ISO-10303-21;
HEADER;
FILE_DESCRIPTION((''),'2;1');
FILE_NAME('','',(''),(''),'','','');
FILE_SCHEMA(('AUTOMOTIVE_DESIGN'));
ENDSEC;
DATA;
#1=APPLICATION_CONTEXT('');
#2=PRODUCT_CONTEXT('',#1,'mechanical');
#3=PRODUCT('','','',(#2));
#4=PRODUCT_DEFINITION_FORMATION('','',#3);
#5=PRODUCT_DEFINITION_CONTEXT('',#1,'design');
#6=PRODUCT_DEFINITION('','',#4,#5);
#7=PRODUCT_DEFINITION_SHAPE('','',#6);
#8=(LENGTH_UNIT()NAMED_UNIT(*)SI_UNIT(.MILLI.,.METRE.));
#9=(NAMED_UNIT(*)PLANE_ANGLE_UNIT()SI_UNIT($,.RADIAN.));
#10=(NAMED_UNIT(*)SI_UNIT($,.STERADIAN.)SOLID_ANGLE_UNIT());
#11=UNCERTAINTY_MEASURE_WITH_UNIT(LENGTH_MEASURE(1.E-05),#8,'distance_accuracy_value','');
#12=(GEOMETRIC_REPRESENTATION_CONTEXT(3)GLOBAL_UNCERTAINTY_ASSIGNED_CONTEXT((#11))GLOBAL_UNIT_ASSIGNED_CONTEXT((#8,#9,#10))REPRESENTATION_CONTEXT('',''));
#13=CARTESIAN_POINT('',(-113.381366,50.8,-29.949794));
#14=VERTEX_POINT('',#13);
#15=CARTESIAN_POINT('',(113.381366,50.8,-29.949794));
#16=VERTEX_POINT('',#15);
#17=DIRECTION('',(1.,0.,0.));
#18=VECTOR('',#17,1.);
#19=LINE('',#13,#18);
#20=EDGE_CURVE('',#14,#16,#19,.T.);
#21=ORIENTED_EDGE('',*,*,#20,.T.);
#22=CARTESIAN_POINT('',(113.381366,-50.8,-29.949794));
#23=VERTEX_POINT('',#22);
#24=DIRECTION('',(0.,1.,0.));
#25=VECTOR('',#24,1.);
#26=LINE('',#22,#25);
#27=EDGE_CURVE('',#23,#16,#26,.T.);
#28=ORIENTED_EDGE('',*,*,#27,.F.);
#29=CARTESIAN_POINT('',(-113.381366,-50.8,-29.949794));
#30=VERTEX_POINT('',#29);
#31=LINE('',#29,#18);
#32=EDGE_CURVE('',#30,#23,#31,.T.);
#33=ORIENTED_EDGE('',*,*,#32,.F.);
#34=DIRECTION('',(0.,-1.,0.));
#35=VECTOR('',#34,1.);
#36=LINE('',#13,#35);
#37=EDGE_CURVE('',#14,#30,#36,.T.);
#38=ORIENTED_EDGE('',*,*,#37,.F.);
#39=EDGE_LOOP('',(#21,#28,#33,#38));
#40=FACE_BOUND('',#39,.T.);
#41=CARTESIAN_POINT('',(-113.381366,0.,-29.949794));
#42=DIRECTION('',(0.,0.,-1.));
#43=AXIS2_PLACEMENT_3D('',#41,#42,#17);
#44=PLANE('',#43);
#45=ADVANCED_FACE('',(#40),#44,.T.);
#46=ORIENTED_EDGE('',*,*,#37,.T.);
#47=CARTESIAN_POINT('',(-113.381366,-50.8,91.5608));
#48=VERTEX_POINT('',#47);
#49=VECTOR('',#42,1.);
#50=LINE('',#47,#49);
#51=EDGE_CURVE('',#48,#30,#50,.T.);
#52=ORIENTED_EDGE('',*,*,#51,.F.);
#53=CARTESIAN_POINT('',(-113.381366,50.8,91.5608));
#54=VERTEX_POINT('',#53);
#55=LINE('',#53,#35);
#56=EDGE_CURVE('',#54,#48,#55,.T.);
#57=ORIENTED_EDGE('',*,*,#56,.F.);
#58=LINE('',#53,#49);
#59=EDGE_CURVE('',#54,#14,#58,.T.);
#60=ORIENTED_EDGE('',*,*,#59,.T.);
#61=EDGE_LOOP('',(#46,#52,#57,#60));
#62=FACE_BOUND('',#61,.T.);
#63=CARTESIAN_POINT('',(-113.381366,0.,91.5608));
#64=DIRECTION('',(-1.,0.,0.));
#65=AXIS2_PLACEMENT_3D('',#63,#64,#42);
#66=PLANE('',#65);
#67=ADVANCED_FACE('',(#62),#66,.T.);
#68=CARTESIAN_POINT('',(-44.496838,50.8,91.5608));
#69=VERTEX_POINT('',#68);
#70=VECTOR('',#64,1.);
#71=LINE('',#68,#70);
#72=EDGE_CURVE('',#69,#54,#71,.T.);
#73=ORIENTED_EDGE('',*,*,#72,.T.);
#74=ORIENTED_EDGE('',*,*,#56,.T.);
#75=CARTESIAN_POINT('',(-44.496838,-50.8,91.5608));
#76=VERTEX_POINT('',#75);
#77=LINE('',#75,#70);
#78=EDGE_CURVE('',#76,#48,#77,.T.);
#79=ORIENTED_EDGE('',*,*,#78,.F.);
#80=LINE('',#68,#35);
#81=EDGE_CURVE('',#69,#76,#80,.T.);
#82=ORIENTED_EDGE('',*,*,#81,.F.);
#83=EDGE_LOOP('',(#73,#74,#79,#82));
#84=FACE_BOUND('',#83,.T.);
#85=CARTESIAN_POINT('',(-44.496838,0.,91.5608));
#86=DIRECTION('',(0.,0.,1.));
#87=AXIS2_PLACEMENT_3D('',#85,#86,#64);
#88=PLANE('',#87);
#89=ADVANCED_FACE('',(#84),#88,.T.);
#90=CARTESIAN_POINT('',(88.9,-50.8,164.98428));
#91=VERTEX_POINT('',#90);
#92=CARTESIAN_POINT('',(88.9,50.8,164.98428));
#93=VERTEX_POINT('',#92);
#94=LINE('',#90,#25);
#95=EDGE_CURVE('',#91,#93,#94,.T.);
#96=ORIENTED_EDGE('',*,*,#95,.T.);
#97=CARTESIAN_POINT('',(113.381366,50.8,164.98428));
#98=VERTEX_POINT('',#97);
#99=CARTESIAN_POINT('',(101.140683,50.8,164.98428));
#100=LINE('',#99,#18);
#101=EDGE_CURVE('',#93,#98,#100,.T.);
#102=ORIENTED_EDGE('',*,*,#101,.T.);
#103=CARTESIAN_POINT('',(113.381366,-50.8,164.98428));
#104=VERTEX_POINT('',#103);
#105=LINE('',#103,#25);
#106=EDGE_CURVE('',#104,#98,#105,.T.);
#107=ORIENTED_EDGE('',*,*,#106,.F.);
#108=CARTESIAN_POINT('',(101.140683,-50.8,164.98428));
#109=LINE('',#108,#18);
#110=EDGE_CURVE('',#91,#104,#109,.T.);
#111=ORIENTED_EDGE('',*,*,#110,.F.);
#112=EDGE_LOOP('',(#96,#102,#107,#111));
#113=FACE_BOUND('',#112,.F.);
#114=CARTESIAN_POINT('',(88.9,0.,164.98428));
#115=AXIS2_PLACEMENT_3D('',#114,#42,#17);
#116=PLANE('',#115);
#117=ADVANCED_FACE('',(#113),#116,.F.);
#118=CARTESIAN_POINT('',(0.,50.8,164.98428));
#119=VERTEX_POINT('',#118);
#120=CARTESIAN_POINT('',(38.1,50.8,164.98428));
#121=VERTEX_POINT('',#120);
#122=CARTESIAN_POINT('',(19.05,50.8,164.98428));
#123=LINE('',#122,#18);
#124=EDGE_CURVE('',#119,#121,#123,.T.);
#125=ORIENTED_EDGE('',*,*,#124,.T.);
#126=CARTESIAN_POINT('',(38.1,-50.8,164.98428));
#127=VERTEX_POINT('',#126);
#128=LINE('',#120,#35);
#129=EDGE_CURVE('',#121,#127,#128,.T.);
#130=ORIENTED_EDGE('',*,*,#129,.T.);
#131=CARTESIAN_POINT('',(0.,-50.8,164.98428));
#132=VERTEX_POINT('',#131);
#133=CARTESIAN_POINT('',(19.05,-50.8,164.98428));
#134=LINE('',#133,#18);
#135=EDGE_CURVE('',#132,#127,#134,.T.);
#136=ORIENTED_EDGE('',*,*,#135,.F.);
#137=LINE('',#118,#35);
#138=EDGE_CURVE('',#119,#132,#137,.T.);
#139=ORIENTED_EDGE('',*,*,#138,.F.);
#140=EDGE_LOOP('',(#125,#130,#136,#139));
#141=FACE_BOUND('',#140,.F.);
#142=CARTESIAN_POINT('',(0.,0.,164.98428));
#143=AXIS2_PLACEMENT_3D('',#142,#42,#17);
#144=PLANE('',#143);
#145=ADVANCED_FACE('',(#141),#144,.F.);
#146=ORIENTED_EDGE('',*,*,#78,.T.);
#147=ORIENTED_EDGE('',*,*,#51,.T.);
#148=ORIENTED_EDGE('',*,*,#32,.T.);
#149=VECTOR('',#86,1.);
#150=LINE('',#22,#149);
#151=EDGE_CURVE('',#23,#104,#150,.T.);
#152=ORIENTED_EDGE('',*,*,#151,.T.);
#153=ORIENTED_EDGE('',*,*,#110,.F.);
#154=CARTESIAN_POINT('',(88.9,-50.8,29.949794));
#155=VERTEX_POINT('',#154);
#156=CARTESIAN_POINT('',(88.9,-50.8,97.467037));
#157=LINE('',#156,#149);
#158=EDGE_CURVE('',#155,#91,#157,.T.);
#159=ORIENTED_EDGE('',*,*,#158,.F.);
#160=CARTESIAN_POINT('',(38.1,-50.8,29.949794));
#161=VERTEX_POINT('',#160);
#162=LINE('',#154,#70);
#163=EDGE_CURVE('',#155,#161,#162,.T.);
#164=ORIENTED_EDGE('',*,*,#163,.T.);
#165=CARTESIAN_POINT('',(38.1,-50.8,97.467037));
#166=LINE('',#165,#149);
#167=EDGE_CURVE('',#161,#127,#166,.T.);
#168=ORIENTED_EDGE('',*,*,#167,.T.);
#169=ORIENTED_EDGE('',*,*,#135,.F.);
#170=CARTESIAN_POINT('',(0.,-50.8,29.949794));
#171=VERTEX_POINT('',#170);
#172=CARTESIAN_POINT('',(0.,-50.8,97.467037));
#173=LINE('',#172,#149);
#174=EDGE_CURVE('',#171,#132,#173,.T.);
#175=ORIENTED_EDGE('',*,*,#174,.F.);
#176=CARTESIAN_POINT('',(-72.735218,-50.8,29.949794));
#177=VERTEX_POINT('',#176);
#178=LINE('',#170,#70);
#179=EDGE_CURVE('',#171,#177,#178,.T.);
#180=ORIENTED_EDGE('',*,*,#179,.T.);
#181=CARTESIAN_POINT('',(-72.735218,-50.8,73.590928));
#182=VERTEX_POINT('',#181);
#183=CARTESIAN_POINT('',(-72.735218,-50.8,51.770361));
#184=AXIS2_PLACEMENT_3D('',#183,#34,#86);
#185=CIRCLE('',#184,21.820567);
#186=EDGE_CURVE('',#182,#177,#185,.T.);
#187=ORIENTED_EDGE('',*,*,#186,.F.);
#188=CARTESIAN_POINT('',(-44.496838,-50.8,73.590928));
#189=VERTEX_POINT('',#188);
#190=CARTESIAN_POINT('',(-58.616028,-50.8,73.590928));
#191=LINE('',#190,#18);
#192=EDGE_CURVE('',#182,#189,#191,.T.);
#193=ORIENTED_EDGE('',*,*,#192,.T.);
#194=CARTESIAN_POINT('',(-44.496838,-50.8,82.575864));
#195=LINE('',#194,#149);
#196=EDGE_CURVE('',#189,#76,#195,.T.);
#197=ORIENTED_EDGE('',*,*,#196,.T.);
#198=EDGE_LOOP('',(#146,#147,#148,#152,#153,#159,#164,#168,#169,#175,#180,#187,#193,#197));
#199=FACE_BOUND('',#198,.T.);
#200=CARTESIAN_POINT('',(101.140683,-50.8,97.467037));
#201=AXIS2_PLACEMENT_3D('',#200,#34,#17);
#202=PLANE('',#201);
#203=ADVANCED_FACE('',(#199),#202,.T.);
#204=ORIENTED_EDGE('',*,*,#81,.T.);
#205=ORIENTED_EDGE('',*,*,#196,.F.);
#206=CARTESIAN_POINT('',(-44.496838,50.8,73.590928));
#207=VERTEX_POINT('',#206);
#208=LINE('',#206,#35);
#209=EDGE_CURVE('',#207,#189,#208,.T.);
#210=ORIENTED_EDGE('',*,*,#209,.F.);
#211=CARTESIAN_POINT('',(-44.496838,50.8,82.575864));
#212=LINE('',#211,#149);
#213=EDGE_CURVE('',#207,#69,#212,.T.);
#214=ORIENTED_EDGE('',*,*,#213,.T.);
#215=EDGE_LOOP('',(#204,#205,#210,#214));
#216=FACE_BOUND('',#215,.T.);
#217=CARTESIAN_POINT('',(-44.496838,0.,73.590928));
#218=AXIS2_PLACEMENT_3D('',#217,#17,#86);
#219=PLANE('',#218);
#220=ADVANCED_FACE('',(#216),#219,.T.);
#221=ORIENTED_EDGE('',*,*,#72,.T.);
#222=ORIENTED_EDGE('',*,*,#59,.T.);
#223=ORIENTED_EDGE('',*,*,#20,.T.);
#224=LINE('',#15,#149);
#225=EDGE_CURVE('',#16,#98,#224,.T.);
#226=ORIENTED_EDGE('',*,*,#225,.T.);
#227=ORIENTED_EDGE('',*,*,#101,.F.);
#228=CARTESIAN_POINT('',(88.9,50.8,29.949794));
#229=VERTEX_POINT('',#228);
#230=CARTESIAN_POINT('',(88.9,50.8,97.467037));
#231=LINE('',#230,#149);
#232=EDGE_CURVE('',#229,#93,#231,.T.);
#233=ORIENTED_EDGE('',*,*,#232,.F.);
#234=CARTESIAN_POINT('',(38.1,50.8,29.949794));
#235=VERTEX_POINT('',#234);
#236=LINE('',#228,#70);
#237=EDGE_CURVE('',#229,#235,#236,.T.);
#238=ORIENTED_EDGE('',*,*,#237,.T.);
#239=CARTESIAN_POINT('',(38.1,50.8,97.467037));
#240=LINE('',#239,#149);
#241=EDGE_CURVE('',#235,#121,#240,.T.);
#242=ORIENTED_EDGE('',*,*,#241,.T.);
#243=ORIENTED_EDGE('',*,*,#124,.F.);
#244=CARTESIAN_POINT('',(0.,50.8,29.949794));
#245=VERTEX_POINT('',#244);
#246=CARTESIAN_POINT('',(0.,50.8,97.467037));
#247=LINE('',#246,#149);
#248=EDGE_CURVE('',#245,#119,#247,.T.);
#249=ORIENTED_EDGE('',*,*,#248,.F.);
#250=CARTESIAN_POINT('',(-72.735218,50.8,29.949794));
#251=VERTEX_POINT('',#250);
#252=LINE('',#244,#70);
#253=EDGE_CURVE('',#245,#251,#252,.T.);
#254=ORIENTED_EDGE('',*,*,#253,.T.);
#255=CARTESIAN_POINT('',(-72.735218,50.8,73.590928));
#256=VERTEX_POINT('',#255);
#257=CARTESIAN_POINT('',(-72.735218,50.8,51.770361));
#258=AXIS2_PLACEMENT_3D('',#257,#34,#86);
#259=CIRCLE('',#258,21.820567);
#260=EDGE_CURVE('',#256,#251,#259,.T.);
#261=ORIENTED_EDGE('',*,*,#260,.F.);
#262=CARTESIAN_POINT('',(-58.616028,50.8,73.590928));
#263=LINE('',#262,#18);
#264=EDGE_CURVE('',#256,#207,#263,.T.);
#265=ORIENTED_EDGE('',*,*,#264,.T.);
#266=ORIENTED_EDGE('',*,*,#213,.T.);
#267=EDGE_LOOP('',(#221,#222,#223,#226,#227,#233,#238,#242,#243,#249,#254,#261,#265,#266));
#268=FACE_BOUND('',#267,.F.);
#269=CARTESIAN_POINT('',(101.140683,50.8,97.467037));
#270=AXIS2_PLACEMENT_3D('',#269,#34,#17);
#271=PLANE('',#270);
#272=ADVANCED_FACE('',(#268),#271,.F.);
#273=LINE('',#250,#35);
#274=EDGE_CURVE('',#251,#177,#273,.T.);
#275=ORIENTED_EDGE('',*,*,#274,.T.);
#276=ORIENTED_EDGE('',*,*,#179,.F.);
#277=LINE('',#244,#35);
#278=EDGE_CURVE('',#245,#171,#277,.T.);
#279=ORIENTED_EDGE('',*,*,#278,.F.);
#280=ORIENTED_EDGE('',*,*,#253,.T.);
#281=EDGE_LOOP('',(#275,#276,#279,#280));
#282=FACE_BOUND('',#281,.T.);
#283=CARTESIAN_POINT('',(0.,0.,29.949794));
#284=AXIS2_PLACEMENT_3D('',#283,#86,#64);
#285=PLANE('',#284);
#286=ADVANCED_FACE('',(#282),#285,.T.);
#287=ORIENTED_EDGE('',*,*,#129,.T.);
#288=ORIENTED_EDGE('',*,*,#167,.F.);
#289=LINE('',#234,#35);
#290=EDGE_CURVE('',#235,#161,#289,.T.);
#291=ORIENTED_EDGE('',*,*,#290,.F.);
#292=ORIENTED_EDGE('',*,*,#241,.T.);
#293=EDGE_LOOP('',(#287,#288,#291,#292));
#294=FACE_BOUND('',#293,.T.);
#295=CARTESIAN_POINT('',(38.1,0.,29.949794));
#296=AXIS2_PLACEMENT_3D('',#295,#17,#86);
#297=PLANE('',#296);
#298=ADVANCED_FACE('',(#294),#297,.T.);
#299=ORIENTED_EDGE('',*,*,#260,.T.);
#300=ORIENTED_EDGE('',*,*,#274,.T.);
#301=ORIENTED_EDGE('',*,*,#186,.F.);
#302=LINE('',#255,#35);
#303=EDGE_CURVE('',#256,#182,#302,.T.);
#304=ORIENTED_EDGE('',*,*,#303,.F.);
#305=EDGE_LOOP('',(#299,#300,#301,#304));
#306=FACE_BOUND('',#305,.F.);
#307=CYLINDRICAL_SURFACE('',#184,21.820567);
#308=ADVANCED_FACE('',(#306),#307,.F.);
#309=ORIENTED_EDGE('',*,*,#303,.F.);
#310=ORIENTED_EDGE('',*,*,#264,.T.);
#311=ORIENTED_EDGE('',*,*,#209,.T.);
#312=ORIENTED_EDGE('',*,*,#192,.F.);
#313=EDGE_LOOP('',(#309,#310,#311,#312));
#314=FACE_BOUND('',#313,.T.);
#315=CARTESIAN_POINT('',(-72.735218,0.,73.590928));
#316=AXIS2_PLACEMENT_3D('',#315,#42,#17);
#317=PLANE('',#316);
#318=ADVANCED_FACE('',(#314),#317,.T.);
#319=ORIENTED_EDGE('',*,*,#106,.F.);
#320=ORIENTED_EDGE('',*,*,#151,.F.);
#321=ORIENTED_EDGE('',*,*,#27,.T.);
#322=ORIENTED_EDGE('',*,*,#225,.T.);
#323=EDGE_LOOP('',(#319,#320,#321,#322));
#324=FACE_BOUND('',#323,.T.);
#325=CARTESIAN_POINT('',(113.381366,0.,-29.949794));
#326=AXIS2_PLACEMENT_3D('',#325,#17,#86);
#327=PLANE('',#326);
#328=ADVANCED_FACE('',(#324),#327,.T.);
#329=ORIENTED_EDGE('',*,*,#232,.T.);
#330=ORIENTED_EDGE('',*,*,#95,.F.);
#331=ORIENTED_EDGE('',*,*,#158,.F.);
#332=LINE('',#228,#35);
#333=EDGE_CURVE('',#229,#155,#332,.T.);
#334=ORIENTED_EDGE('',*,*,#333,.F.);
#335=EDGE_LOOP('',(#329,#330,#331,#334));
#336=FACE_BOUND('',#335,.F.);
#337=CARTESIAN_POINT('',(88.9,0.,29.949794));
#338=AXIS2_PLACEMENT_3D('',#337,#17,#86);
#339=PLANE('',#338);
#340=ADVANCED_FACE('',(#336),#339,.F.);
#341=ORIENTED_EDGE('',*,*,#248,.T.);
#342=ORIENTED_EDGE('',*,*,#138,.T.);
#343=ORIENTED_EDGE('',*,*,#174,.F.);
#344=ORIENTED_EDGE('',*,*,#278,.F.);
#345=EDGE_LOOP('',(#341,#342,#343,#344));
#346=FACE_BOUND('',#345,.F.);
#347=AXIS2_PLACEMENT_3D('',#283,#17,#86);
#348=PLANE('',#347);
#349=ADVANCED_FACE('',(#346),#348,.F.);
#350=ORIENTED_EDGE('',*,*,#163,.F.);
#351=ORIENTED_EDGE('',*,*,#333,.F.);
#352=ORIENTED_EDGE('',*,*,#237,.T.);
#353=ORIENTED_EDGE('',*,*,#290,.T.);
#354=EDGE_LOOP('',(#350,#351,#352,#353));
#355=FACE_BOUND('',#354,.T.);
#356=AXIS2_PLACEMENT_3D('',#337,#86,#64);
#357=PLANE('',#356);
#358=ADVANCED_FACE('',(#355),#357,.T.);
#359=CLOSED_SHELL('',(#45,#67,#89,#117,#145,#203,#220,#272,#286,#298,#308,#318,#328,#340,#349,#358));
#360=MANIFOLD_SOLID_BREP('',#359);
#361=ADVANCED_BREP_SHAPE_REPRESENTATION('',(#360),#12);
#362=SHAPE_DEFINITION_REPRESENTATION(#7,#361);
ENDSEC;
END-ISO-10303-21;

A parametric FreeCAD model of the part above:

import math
import FreeCAD as App
import Part
import Sketcher

V = App.Vector
Q = App.Units.Quantity


def add_polygon(sketch, points):
    """Adds a closed chain of lines whose ends are joined by coincident constraints."""
    first, n = sketch.GeometryCount, len(points)
    for a, b in zip(points, points[1:] + points[:1]):
        sketch.addGeometry(Part.LineSegment(App.Vector(*a, 0), App.Vector(*b, 0)), False)
    for i in range(n):
        sketch.addConstraint(Sketcher.Constraint("Coincident", first + i, 2, first + (i + 1) % n, 1))

doc = App.newDocument("Part")
params = doc.addObject("Spreadsheet::Sheet", "Params")
for row, (alias, value) in enumerate([
    ("sketch1_width", "2 in"),
    ("sketch1_width2", "1.5 in"),
    ("pad1_length", "4 in"),
    ("pocket1_length", "6.96 in"),
], start=1):
    params.set(f"A{row}", alias)
    params.set(f"B{row}", "=" + value)
    params.setAlias(f"B{row}", alias)

body = doc.addObject("PartDesign::Body", "Body")

# Sketch on XZ plane
sketch1 = body.newObject("Sketcher::SketchObject", "Sketch")
sketch1.AttachmentSupport = (doc.getObject("XZ_Plane"), [""])
sketch1.MapMode = "FlatFace"
add_polygon(sketch1, [(89, 165), (89, 30), (38, 30), (38, 165), (0, 165), (0, 30), (-73, 30), (-73, 74), (-44, 74), (-44, 92), (-113, 92), (-113, -30), (113, -30), (113, 165)])  # lines 0-13
sketch1.addConstraint(Sketcher.Constraint("Vertical", 0))
sketch1.addConstraint(Sketcher.Constraint("Horizontal", 1))
sketch1.addConstraint(Sketcher.Constraint("Vertical", 2))
sketch1.addConstraint(Sketcher.Constraint("Horizontal", 3))
sketch1.addConstraint(Sketcher.Constraint("Vertical", 4))
sketch1.addConstraint(Sketcher.Constraint("Horizontal", 5))
sketch1.addConstraint(Sketcher.Constraint("Vertical", 6))
sketch1.addConstraint(Sketcher.Constraint("Horizontal", 7))
sketch1.addConstraint(Sketcher.Constraint("Vertical", 8))
sketch1.addConstraint(Sketcher.Constraint("Horizontal", 9))
sketch1.addConstraint(Sketcher.Constraint("Vertical", 10))
sketch1.addConstraint(Sketcher.Constraint("Horizontal", 11))
sketch1.addConstraint(Sketcher.Constraint("Vertical", 12))
sketch1.addConstraint(Sketcher.Constraint("Horizontal", 13))
sketch1.addConstraint(Sketcher.Constraint("PointOnObject", 3, 2, -2))
sketch1.addConstraint(Sketcher.Constraint("Horizontal", 1, 2, 4, 2))
sketch1.addConstraint(Sketcher.Constraint("Horizontal", 3, 2, 12, 2))
sketch1.addConstraint(Sketcher.Constraint("DistanceX", 1, 2, 1, 1, Q("2 in")))
sketch1.addConstraint(Sketcher.Constraint("DistanceX", 3, 2, 3, 1, Q("1.5 in")))
sketch1.addConstraint(Sketcher.Constraint("DistanceX", 5, 2, 5, 1, 72.735218))
sketch1.addConstraint(Sketcher.Constraint("DistanceX", 7, 1, 7, 2, 28.23838))
sketch1.addConstraint(Sketcher.Constraint("DistanceX", 9, 2, 9, 1, 68.884528))
sketch1.addConstraint(Sketcher.Constraint("DistanceX", 11, 1, 11, 2, 226.762732))
sketch1.addConstraint(Sketcher.Constraint("DistanceY", 8, 1, 8, 2, 17.969872))
sketch1.addConstraint(Sketcher.Constraint("DistanceY", -1, 1, 8, 2, 91.5608))
sketch1.addConstraint(Sketcher.Constraint("DistanceY", 0, 2, 0, 1, 135.034486))
sketch1.addConstraint(Sketcher.Constraint("DistanceY", 6, 1, 6, 2, 43.641134))
sketch1.addConstraint(Sketcher.Constraint("DistanceY", 10, 2, 10, 1, 121.510594))
sketch1.setExpression("Constraints[31]", "Params.sketch1_width")
sketch1.setExpression("Constraints[32]", "Params.sketch1_width2")
pad1 = body.newObject("PartDesign::Pad", "Pad")
pad1.Profile = sketch1
pad1.setExpression("Length", "Params.pad1_length")
pad1.Midplane = True

# Sketch on XZ plane
sketch2 = body.newObject("Sketcher::SketchObject", "Sketch001")
sketch2.AttachmentSupport = (doc.getObject("XZ_Plane"), [""])
sketch2.MapMode = "FlatFace"
sketch2.AttachmentOffset = App.Placement(V(0, 0, 2 * 25.4), App.Rotation())
sketch2.addGeometry(Part.LineSegment(V(-73, 30, 0), V(-73, 74, 0)), False)
sketch2.addGeometry(Part.ArcOfCircle(Part.Circle(V(-73, 52, 0), V(0, 0, 1), 22), math.radians(90), math.radians(270)), False)
sketch2.addConstraint(Sketcher.Constraint("Coincident", 0, 1, 1, 2))
sketch2.addConstraint(Sketcher.Constraint("Coincident", 1, 1, 0, 2))
sketch2.addConstraint(Sketcher.Constraint("Vertical", 0))
sketch2.addConstraint(Sketcher.Constraint("Vertical", 1, 3, 0, 1))
sketch2.addConstraint(Sketcher.Constraint("Radius", 1, 21.820567))
sketch2.addConstraint(Sketcher.Constraint("DistanceX", 1, 3, -1, 1, 72.735218))
sketch2.addConstraint(Sketcher.Constraint("DistanceY", -1, 1, 1, 3, 51.770361))
pocket1 = body.newObject("PartDesign::Pocket", "Pocket")
pocket1.Profile = sketch2
pocket1.setExpression("Length", "Params.pocket1_length")

doc.recompute()
